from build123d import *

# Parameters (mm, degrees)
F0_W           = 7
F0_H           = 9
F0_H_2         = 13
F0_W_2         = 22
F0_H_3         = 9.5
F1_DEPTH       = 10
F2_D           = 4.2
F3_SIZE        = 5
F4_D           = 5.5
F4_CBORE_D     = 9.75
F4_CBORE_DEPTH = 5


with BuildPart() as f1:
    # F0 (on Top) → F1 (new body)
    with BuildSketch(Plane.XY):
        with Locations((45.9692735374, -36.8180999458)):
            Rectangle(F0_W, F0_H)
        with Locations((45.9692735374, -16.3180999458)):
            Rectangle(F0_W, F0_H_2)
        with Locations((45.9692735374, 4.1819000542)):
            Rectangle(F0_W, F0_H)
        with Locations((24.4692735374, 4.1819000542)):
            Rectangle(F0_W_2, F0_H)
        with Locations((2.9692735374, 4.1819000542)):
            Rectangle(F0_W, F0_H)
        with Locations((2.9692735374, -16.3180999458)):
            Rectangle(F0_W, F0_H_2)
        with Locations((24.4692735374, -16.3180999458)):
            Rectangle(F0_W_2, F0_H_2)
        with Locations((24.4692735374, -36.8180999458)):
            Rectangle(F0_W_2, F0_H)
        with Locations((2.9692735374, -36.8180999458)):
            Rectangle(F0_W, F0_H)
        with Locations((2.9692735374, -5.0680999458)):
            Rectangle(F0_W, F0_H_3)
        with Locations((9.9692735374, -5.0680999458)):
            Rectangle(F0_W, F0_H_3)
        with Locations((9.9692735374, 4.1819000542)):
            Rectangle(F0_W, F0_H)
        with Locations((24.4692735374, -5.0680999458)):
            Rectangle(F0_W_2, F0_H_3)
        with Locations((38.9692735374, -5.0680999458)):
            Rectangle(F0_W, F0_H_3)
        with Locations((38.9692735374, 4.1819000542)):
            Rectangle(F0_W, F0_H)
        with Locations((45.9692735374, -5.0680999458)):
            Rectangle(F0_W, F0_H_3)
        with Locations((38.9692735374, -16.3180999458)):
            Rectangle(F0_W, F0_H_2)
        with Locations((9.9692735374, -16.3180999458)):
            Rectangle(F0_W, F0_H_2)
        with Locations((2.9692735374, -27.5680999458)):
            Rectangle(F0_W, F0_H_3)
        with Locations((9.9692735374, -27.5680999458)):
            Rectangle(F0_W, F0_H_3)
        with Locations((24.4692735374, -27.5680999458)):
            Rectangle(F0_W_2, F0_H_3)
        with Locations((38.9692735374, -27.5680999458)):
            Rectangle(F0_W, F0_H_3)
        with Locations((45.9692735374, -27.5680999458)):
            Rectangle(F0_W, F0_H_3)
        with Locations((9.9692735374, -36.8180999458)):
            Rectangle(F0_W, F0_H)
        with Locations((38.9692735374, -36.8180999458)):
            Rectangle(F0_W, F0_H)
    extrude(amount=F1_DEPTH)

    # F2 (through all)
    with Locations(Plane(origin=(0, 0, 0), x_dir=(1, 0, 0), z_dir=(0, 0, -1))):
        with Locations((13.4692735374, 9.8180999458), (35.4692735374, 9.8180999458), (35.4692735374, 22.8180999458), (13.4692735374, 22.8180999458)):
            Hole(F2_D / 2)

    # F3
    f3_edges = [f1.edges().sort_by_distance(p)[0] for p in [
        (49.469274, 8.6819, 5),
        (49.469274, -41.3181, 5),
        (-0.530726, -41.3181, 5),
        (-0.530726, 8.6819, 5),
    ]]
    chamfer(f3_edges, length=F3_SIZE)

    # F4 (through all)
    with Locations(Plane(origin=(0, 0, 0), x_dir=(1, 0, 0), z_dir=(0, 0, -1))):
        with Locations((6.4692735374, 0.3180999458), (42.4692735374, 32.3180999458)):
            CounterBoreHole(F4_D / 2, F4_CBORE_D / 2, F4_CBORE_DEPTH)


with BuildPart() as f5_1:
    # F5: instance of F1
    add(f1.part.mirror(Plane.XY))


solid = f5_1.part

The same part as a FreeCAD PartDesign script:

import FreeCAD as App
import Part
import Sketcher

V = App.Vector
Q = App.Units.Quantity


def edges_at(feature, points):
    """Names of the edges that pass closest to the given points."""
    edges = feature.Shape.Edges
    near = lambda p: min(range(len(edges)), key=lambda i: edges[i].distToShape(Part.Vertex(*p))[0])
    return sorted({f"Edge{near(p) + 1}" for p in points})


def add_polygon(sketch, points):
    """Adds a closed chain of lines whose ends are joined by coincident constraints."""
    first, n = sketch.GeometryCount, len(points)
    for a, b in zip(points, points[1:] + points[:1]):
        sketch.addGeometry(Part.LineSegment(App.Vector(*a, 0), App.Vector(*b, 0)), False)
    for i in range(n):
        sketch.addConstraint(Sketcher.Constraint("Coincident", first + i, 2, first + (i + 1) % n, 1))

doc = App.newDocument("Part")
body = doc.addObject("PartDesign::Body", "Body")

# Sketch on XY plane
sketch1 = doc.addObject("Sketcher::SketchObject", "Sketch")
body.addObject(sketch1)
sketch1.AttachmentSupport = (doc.XY_Plane, [""])
sketch1.MapMode = "FlatFace"
add_polygon(sketch1, [(49.469274, -41.3181), (49.469274, 8.6819), (-0.530726, 8.6819), (-0.530726, -41.3181)])  # lines 0-3
sketch1.addConstraint(Sketcher.Constraint("Vertical", 0))
sketch1.addConstraint(Sketcher.Constraint("Horizontal", 1))
sketch1.addConstraint(Sketcher.Constraint("Vertical", 2))
sketch1.addConstraint(Sketcher.Constraint("Horizontal", 3))
sketch1.addConstraint(Sketcher.Constraint("Equal", 3, 0))
sketch1.addConstraint(Sketcher.Constraint("DistanceX", 1, 2, 1, 1, Q("50 mm")))
sketch1.addConstraint(Sketcher.Constraint("DistanceY", -1, 1, 0, 2, Q("8.6819 mm")))
sketch1.addConstraint(Sketcher.Constraint("DistanceX", -1, 1, 0, 2, Q("49.469274 mm")))
pad1 = doc.addObject("PartDesign::Pad", "Pad")
body.addObject(pad1)
pad1.Profile = sketch1
pad1.Length = 10

# Sketch on XY plane
sketch2 = doc.addObject("Sketcher::SketchObject", "Sketch001")
body.addObject(sketch2)
sketch2.AttachmentSupport = (doc.XY_Plane, [""])
sketch2.MapMode = "FlatFace"
sketch2.addGeometry(Part.Circle(V(13.469274, -9.8181, 0), V(0, 0, 1), 2.1), False)
sketch2.addGeometry(Part.Circle(V(35.469274, -9.8181, 0), V(0, 0, 1), 2.1), False)
sketch2.addGeometry(Part.Circle(V(35.469274, -22.8181, 0), V(0, 0, 1), 2.1), False)
sketch2.addGeometry(Part.Circle(V(13.469274, -22.8181, 0), V(0, 0, 1), 2.1), False)
sketch2.addConstraint(Sketcher.Constraint("Equal", 0, 1))
sketch2.addConstraint(Sketcher.Constraint("Equal", 1, 2))
sketch2.addConstraint(Sketcher.Constraint("Equal", 2, 3))
sketch2.addConstraint(Sketcher.Constraint("Horizontal", 0, 3, 1, 3))
sketch2.addConstraint(Sketcher.Constraint("Horizontal", 2, 3, 3, 3))
sketch2.addConstraint(Sketcher.Constraint("Vertical", 1, 3, 2, 3))
sketch2.addConstraint(Sketcher.Constraint("Vertical", 0, 3, 3, 3))
sketch2.addConstraint(Sketcher.Constraint("Diameter", 0, Q("4.2 mm")))
sketch2.addConstraint(Sketcher.Constraint("DistanceX", 0, 3, 1, 3, Q("22 mm")))
sketch2.addConstraint(Sketcher.Constraint("DistanceY", 2, 3, 1, 3, Q("13 mm")))
sketch2.addConstraint(Sketcher.Constraint("DistanceY", 0, 3, -1, 1, Q("9.8181 mm")))
sketch2.addConstraint(Sketcher.Constraint("DistanceX", -1, 1, 0, 3, Q("13.469274 mm")))
doc.recompute()
hole = doc.addObject("PartDesign::Hole", "Hole")
body.addObject(hole)
hole.Profile = sketch2
hole.ThreadType = "None"
hole.Diameter = 4.2
hole.DepthType = "ThroughAll"
hole.Reversed = True
doc.recompute()

chamfer = doc.addObject("PartDesign::Chamfer", "Chamfer")
body.addObject(chamfer)
chamfer.Base = (hole, edges_at(hole, [
    (49.469, 8.682, 5),
    (49.469, -41.318, 5),
    (-0.531, -41.318, 5),
    (-0.531, 8.682, 5),
]))
chamfer.Size = 5

# Sketch on XY plane
sketch3 = doc.addObject("Sketcher::SketchObject", "Sketch002")
body.addObject(sketch3)
sketch3.AttachmentSupport = (doc.XY_Plane, [""])
sketch3.MapMode = "FlatFace"
sketch3.addGeometry(Part.Circle(V(6.469274, -0.3181, 0), V(0, 0, 1), 2.75), False)
sketch3.addGeometry(Part.Circle(V(42.469274, -32.3181, 0), V(0, 0, 1), 2.75), False)
sketch3.addConstraint(Sketcher.Constraint("Equal", 0, 1))
sketch3.addConstraint(Sketcher.Constraint("Diameter", 0, Q("5.5 mm")))
sketch3.addConstraint(Sketcher.Constraint("DistanceX", 0, 3, 1, 3, Q("36 mm")))
sketch3.addConstraint(Sketcher.Constraint("DistanceY", 1, 3, 0, 3, Q("32 mm")))
sketch3.addConstraint(Sketcher.Constraint("DistanceY", 0, 3, -1, 1, Q("0.3181 mm")))
sketch3.addConstraint(Sketcher.Constraint("DistanceX", -1, 1, 0, 3, Q("6.469274 mm")))
doc.recompute()
hole2 = doc.addObject("PartDesign::Hole", "Hole001")
body.addObject(hole2)
hole2.Profile = sketch3
hole2.ThreadType = "None"
hole2.Diameter = 5.5
hole2.DepthType = "ThroughAll"
hole2.HoleCutType = "Counterbore"
hole2.HoleCutDiameter = 9.75
hole2.HoleCutDepth = 5
hole2.Reversed = True
body2 = doc.addObject("PartDesign::Body", "Body001")
doc.recompute()

mirroring = doc.addObject("Part::Mirroring", "Mirroring")
mirroring.Source = body
mirroring.Base = V(0, 0, 0)
mirroring.Normal = V(0, 0, 1)
body2.BaseFeature = mirroring
doc.recompute()
body.Visibility = False
mirroring.Visibility = False

doc.recompute()
